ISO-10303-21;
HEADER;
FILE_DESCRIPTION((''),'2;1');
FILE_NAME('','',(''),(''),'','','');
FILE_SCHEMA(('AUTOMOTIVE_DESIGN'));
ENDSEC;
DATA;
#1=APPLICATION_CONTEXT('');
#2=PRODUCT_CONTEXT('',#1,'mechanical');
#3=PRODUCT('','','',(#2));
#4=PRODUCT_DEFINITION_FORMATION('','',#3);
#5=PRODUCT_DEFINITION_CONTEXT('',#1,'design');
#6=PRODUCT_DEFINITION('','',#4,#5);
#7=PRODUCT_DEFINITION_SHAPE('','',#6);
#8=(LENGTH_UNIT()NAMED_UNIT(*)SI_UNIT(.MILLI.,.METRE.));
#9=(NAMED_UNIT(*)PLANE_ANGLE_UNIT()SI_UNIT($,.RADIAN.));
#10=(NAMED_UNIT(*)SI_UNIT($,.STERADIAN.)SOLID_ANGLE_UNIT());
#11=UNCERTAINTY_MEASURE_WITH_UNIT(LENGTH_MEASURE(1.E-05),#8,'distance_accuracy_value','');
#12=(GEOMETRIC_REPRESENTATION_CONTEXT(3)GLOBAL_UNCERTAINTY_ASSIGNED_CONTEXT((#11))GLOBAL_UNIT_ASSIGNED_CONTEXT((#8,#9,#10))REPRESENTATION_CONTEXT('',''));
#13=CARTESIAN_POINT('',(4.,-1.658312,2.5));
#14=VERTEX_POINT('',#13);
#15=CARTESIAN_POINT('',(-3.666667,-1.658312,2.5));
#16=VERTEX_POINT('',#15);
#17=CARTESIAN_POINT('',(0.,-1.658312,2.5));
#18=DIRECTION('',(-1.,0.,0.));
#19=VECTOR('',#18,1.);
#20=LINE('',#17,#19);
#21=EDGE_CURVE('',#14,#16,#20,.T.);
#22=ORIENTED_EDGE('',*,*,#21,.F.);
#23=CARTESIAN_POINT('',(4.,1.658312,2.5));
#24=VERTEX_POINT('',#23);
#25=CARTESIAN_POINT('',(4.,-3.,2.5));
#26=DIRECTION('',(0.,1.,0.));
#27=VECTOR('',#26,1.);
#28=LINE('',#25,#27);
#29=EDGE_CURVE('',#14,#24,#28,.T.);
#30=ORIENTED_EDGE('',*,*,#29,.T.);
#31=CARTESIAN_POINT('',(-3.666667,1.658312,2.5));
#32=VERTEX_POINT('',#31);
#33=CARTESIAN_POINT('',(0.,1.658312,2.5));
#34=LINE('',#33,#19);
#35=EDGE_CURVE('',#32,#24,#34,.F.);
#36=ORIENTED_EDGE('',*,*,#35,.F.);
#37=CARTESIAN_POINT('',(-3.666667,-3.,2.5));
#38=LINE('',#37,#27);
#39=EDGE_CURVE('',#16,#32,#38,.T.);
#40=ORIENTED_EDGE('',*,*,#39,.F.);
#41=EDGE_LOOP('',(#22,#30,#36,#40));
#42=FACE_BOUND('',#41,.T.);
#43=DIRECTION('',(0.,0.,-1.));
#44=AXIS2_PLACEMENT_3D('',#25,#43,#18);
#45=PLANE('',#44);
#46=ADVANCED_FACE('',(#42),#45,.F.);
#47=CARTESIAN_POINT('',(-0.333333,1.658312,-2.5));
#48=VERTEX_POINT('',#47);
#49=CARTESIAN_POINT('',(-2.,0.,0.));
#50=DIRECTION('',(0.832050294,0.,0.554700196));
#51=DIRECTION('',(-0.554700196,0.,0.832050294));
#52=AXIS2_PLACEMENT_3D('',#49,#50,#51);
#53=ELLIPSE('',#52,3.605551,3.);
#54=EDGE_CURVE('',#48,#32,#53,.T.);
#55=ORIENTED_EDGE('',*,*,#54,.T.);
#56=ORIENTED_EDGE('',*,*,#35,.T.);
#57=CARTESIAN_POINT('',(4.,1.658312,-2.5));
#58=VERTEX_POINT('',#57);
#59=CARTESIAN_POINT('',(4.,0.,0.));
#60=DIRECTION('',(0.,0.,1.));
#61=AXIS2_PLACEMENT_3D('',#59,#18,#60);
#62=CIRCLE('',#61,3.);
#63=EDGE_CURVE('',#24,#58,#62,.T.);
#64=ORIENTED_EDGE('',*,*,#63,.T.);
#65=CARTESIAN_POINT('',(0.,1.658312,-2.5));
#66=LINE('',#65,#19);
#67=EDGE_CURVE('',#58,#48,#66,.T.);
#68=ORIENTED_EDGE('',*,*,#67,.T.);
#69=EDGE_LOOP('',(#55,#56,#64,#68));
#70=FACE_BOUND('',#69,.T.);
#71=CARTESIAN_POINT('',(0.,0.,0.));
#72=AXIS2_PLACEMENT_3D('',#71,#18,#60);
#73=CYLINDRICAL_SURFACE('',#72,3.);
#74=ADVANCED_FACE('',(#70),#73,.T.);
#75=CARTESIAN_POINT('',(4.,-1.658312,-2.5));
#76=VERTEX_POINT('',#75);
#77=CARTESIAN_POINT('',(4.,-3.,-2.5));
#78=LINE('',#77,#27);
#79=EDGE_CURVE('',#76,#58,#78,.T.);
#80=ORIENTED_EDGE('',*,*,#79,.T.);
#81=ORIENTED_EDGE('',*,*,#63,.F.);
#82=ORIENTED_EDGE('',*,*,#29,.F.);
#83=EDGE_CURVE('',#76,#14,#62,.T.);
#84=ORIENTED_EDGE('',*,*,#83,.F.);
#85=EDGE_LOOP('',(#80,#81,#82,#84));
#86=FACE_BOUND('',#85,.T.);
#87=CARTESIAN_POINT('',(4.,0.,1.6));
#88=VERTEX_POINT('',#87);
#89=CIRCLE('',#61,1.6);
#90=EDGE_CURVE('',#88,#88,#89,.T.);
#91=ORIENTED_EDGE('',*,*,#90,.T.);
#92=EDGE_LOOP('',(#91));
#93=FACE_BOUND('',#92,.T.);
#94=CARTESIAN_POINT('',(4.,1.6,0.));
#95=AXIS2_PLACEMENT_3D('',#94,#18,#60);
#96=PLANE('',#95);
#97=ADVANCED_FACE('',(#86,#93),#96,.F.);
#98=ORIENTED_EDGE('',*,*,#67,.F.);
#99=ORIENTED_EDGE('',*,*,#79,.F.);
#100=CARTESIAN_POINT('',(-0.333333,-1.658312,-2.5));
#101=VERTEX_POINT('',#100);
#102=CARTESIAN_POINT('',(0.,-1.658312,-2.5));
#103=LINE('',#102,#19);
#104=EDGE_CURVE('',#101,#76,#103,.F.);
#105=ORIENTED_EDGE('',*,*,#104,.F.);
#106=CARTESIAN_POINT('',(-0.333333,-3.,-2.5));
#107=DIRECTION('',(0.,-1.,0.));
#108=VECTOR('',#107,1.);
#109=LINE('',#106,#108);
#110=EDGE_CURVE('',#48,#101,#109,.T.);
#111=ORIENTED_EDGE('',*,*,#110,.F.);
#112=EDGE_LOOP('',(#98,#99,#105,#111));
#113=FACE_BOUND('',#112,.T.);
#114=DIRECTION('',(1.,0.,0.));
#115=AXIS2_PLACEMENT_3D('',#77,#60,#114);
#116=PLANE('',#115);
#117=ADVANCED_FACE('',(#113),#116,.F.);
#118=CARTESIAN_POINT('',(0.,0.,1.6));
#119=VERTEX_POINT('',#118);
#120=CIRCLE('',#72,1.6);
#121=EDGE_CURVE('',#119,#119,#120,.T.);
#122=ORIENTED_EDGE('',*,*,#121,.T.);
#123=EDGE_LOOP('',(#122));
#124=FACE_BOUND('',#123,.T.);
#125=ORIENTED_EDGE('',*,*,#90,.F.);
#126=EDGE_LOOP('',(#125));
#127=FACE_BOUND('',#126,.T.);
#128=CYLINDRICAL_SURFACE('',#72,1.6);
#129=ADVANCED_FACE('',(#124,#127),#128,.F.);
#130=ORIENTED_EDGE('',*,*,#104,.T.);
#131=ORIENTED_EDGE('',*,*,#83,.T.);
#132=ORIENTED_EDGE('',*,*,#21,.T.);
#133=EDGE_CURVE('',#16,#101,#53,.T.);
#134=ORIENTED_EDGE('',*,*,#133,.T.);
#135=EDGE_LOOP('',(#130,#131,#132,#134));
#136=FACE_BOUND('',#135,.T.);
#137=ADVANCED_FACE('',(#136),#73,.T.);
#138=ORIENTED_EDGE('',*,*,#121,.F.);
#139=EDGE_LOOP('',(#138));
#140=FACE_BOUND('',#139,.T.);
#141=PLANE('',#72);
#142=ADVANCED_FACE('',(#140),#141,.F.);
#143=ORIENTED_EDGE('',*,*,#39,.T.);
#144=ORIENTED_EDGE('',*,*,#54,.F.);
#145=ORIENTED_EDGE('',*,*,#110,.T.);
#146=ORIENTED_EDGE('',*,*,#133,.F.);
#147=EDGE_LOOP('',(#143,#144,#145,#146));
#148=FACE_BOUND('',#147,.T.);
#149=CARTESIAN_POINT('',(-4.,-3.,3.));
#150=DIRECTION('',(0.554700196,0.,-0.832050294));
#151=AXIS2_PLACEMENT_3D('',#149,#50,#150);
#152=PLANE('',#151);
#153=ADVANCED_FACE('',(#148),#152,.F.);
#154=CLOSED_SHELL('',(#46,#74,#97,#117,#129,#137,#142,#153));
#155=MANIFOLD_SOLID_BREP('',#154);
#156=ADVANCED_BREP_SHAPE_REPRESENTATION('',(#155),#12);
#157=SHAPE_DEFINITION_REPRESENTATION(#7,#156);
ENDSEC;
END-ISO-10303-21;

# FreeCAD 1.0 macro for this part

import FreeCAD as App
import Part
import Sketcher

V = App.Vector

doc = App.newDocument("Part")
params = doc.addObject("Spreadsheet::Sheet", "Params")
for row, (alias, value) in enumerate([
    ("sketch1_width", "4 mm"),
    ("sketch1_height", "3 mm"),
    ("sketch1_height2", "1.6 mm"),
    ("revolution_angle", "360 deg"),
    ("sketch2_width", "4 mm"),
    ("sketch2_height", "6 mm"),
    ("sketch3_width", "8 mm"),
    ("sketch3_height", "0.5 mm"),
], start=1):
    params.set(f"A{row}", alias)
    params.set(f"B{row}", "=" + value)
    params.setAlias(f"B{row}", alias)

body = doc.addObject("PartDesign::Body", "Body")

# Sketch on XY plane
sketch1 = body.newObject("Sketcher::SketchObject", "Sketch")
sketch1.AttachmentSupport = (doc.getObject("XY_Plane"), [""])
sketch1.MapMode = "FlatFace"
sketch1.addGeometry([
    Part.LineSegment(V(0, 0, 0), V(0, 1.6, 0)),  # 0
    Part.LineSegment(V(0, 1.6, 0), V(4, 1.6, 0)),  # 1
    Part.LineSegment(V(4, 1.6, 0), V(4, 3, 0)),  # 2
    Part.LineSegment(V(4, 3, 0), V(-4, 3, 0)),  # 3
    Part.LineSegment(V(-4, 3, 0), V(-4, 0, 0)),  # 4
    Part.LineSegment(V(-4, 0, 0), V(0, 0, 0)),  # 5
], False)
sketch1.addConstraint([
    Sketcher.Constraint("Coincident", 0, 2, 1, 1),
    Sketcher.Constraint("Coincident", 1, 2, 2, 1),
    Sketcher.Constraint("Coincident", 2, 2, 3, 1),
    Sketcher.Constraint("Coincident", 3, 2, 4, 1),
    Sketcher.Constraint("Coincident", 4, 2, 5, 1),
    Sketcher.Constraint("Coincident", 5, 2, 0, 1),
    Sketcher.Constraint("Vertical", 0),
    Sketcher.Constraint("Horizontal", 1),
    Sketcher.Constraint("Vertical", 2),
    Sketcher.Constraint("Horizontal", 3),
    Sketcher.Constraint("Vertical", 4),
    Sketcher.Constraint("Horizontal", 5),
    Sketcher.Constraint("Coincident", 5, 2, -1, 1),
    Sketcher.Constraint("Equal", 1, 5),
    Sketcher.Constraint("DistanceX", 1, 1, 1, 2, 4.0),
    Sketcher.Constraint("DistanceY", 4, 2, 4, 1, 3.0),
    Sketcher.Constraint("DistanceY", 0, 1, 0, 2, 1.6),
])
sketch1.setExpression("Constraints[14]", "Params.sketch1_width")
sketch1.setExpression("Constraints[15]", "Params.sketch1_height")
sketch1.setExpression("Constraints[16]", "Params.sketch1_height2")
revolution = body.newObject("PartDesign::Revolution", "Revolution")
revolution.Profile = sketch1
revolution.ReferenceAxis = (sketch1, ["H_Axis"])
revolution.setExpression("Angle", "Params.revolution_angle")

# Sketch on XZ plane
sketch2 = body.newObject("Sketcher::SketchObject", "Sketch001")
sketch2.AttachmentSupport = (doc.getObject("XZ_Plane"), [""])
sketch2.MapMode = "FlatFace"
sketch2.addGeometry([
    Part.LineSegment(V(-4, 3, 0), V(0, -3, 0)),
    Part.LineSegment(V(0, -3, 0), V(-4, -3, 0)),
    Part.LineSegment(V(-4, -3, 0), V(-4, 3, 0)),
], False)
sketch2.addConstraint([
    Sketcher.Constraint("Coincident", 0, 2, 1, 1),
    Sketcher.Constraint("Coincident", 1, 2, 2, 1),
    Sketcher.Constraint("Coincident", 2, 2, 0, 1),
    Sketcher.Constraint("Horizontal", 1),
    Sketcher.Constraint("Vertical", 2),
    Sketcher.Constraint("PointOnObject", 0, 2, -2),
    Sketcher.Constraint("DistanceX", 1, 2, 1, 1, 4.0),
    Sketcher.Constraint("DistanceY", 2, 1, 2, 2, 6.0),
    Sketcher.Constraint("DistanceY", 0, 2, -1, 1, 3.0),
])
sketch2.setExpression("Constraints[6]", "Params.sketch2_width")
sketch2.setExpression("Constraints[7]", "Params.sketch2_height")
pocket1 = body.newObject("PartDesign::Pocket", "Pocket")
pocket1.Profile = sketch2
pocket1.Type = "ThroughAll"
pocket1.Midplane = True

# Sketch on XZ plane
sketch3 = body.newObject("Sketcher::SketchObject", "Sketch002")
sketch3.AttachmentSupport = (doc.getObject("XZ_Plane"), [""])
sketch3.MapMode = "FlatFace"
sketch3.addGeometry([
    Part.LineSegment(V(-4, 2.5, 0), V(-4, 3, 0)),  # 0
    Part.LineSegment(V(-4, 3, 0), V(4, 3, 0)),  # 1
    Part.LineSegment(V(4, 3, 0), V(4, 2.5, 0)),  # 2
    Part.LineSegment(V(4, 2.5, 0), V(-4, 2.5, 0)),  # 3
    Part.LineSegment(V(-0.333333, -3, 0), V(-0.333333, -2.5, 0)),  # 4
    Part.LineSegment(V(-0.333333, -2.5, 0), V(4, -2.5, 0)),  # 5
    Part.LineSegment(V(4, -2.5, 0), V(4, -3, 0)),  # 6
    Part.LineSegment(V(4, -3, 0), V(-0.333333, -3, 0)),  # 7
], False)
sketch3.addConstraint([
    Sketcher.Constraint("Coincident", 0, 2, 1, 1),
    Sketcher.Constraint("Coincident", 1, 2, 2, 1),
    Sketcher.Constraint("Coincident", 2, 2, 3, 1),
    Sketcher.Constraint("Coincident", 3, 2, 0, 1),
    Sketcher.Constraint("Coincident", 4, 2, 5, 1),
    Sketcher.Constraint("Coincident", 5, 2, 6, 1),
    Sketcher.Constraint("Coincident", 6, 2, 7, 1),
    Sketcher.Constraint("Coincident", 7, 2, 4, 1),
    Sketcher.Constraint("Vertical", 0),
    Sketcher.Constraint("Horizontal", 1),
    Sketcher.Constraint("Vertical", 2),
    Sketcher.Constraint("Horizontal", 3),
    Sketcher.Constraint("Vertical", 4),
    Sketcher.Constraint("Horizontal", 5),
    Sketcher.Constraint("Vertical", 6),
    Sketcher.Constraint("Horizontal", 7),
    Sketcher.Constraint("Symmetric", 3, 2, 5, 2, -1, 1),
    Sketcher.Constraint("Symmetric", 1, 2, 6, 2, -1),
    Sketcher.Constraint("DistanceX", 1, 1, 1, 2, 8.0),
    Sketcher.Constraint("DistanceY", 0, 1, 0, 2, 0.5),
    Sketcher.Constraint("DistanceY", -1, 1, 0, 2, 3.0),
    Sketcher.Constraint("DistanceX", 5, 1, 5, 2, 4.333333),
])
sketch3.setExpression("Constraints[18]", "Params.sketch3_width")
sketch3.setExpression("Constraints[19]", "Params.sketch3_height")
pocket2 = body.newObject("PartDesign::Pocket", "Pocket001")
pocket2.Profile = sketch3
pocket2.Type = "ThroughAll"
pocket2.Midplane = True

doc.recompute()
